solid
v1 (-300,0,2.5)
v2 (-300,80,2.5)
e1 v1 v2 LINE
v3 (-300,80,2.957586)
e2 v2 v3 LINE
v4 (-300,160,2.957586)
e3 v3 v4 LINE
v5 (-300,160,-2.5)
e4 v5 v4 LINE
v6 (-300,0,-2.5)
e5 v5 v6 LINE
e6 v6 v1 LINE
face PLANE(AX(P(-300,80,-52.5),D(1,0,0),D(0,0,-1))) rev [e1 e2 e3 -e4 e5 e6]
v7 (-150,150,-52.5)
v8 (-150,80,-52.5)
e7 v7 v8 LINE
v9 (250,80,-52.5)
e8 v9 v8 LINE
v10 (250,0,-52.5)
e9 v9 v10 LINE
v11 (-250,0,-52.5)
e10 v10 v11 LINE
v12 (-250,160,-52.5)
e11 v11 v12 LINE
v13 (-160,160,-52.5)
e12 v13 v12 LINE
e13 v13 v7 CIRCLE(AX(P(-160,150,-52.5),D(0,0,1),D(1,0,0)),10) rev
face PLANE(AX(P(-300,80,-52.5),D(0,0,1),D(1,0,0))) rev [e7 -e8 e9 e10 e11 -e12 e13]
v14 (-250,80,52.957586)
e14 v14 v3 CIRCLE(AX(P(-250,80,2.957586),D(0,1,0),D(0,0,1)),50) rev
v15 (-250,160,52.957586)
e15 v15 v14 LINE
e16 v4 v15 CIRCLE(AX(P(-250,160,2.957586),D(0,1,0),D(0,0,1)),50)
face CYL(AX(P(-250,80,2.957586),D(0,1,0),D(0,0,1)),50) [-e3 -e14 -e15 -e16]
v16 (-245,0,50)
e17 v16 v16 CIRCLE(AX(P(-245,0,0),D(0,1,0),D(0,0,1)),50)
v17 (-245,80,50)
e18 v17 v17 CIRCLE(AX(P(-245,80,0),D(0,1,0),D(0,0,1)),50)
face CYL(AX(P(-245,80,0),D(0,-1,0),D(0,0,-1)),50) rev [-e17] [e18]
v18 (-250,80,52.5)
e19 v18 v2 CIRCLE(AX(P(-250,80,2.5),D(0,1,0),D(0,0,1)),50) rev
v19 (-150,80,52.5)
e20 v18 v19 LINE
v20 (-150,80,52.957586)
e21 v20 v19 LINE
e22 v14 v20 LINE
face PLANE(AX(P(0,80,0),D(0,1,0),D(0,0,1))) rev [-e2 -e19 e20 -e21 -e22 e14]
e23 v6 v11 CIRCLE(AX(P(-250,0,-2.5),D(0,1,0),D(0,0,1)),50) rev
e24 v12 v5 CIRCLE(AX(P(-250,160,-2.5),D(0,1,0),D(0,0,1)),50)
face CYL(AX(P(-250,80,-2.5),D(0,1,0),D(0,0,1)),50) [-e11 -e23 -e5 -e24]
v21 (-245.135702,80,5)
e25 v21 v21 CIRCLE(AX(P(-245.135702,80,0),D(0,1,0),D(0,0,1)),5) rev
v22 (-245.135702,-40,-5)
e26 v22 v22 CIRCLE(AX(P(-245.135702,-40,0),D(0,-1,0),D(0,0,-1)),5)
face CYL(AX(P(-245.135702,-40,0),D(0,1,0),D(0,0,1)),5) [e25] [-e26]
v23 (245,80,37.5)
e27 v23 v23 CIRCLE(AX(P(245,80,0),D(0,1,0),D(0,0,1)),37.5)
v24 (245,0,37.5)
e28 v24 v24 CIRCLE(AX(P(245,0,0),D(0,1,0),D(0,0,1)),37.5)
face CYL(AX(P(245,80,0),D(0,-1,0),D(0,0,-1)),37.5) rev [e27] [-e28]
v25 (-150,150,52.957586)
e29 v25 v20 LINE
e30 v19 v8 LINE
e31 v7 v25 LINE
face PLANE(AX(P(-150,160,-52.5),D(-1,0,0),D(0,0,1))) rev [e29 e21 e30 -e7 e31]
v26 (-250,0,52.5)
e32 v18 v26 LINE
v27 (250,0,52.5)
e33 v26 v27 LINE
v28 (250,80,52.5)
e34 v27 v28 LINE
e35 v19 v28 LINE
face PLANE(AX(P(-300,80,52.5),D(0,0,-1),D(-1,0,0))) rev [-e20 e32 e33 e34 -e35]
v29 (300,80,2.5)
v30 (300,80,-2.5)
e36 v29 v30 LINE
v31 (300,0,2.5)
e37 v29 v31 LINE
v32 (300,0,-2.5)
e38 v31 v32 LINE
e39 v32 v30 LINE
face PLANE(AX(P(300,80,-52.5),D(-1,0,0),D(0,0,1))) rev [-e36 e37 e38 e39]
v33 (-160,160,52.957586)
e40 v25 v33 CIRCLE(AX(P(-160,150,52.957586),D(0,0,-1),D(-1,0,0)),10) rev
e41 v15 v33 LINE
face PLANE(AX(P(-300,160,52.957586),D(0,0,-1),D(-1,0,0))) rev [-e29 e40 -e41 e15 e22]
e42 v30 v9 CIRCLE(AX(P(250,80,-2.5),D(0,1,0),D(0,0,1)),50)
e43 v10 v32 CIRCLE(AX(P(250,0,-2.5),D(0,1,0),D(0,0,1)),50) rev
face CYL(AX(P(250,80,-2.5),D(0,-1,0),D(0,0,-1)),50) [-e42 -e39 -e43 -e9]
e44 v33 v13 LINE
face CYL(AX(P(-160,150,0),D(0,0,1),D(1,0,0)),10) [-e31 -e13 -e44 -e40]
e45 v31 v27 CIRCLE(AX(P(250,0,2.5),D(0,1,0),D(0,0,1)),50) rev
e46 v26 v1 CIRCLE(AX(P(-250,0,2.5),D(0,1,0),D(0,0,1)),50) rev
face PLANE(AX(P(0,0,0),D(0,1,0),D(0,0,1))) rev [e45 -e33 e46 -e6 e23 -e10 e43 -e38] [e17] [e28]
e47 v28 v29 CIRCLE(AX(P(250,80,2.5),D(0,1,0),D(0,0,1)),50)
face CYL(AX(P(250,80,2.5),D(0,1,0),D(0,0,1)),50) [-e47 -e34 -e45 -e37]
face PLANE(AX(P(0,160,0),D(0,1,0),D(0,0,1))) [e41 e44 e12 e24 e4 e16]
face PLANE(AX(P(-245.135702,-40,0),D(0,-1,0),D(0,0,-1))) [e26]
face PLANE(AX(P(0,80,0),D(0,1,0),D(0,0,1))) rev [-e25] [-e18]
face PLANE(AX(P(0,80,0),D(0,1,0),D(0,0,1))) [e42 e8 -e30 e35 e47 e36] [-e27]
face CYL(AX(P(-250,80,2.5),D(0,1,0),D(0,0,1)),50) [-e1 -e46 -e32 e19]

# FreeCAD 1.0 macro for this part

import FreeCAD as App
import Part
import Sketcher


def edges_at(feature, points):
    """Names of the edges that pass closest to the given points."""
    edges = feature.Shape.Edges
    near = lambda p: min(range(len(edges)), key=lambda i: edges[i].distToShape(Part.Vertex(*p))[0])
    return sorted({f"Edge{near(p) + 1}" for p in points})

doc = App.newDocument("Part")
body = doc.addObject("PartDesign::Body", "Body")

# Sketch on XZ plane
sketch1 = doc.addObject("Sketcher::SketchObject", "Sketch")
body.addObject(sketch1)
sketch1.AttachmentSupport = (doc.XZ_Plane, [""])
sketch1.MapMode = "FlatFace"
sketch1.addGeometry(Part.LineSegment(App.Vector(-300, -52.5, 0), App.Vector(-300, 52.5, 0)), False)
sketch1.addGeometry(Part.LineSegment(App.Vector(-300, 52.5, 0), App.Vector(300, 52.5, 0)), False)
sketch1.addGeometry(Part.LineSegment(App.Vector(300, 52.5, 0), App.Vector(300, -52.5, 0)), False)
sketch1.addGeometry(Part.LineSegment(App.Vector(300, -52.5, 0), App.Vector(-300, -52.5, 0)), False)
sketch1.addGeometry(Part.Circle(App.Vector(-245, 0, 0), App.Vector(0, 0, 1), 50), False)
sketch1.addGeometry(Part.Circle(App.Vector(245, 0, 0), App.Vector(0, 0, 1), 37.5), False)
sketch1.addConstraint(Sketcher.Constraint("Coincident", 0, 2, 1, 1))
sketch1.addConstraint(Sketcher.Constraint("Coincident", 1, 2, 2, 1))
sketch1.addConstraint(Sketcher.Constraint("Coincident", 2, 2, 3, 1))
sketch1.addConstraint(Sketcher.Constraint("Coincident", 3, 2, 0, 1))
sketch1.addConstraint(Sketcher.Constraint("Vertical", 0))
sketch1.addConstraint(Sketcher.Constraint("Horizontal", 1))
sketch1.addConstraint(Sketcher.Constraint("Vertical", 2))
sketch1.addConstraint(Sketcher.Constraint("Horizontal", 3))
sketch1.addConstraint(Sketcher.Constraint("Symmetric", 4, 3, 5, 3, -1, 1))
sketch1.addConstraint(Sketcher.Constraint("Symmetric", 0, 2, 2, 2, -1, 1))
sketch1.addConstraint(Sketcher.Constraint("PointOnObject", 4, 3, -1))
sketch1.addConstraint(Sketcher.Constraint("Diameter", 4, 100.0))
sketch1.addConstraint(Sketcher.Constraint("Diameter", 5, 75.0))
sketch1.addConstraint(Sketcher.Constraint("DistanceX", 1, 1, 1, 2, 600.0))
sketch1.addConstraint(Sketcher.Constraint("DistanceY", 0, 1, 0, 2, 105.0))
sketch1.addConstraint(Sketcher.Constraint("DistanceX", 4, 3, -1, 1, 245.0))
pad1 = doc.addObject("PartDesign::Pad", "Pad")
body.addObject(pad1)
pad1.Profile = sketch1
pad1.Length = 80
pad1.Reversed = True

# Sketch on XZ plane
sketch2 = doc.addObject("Sketcher::SketchObject", "Sketch001")
body.addObject(sketch2)
sketch2.AttachmentSupport = (doc.XZ_Plane, [""])
sketch2.MapMode = "FlatFace"
sketch2.AttachmentOffset = App.Placement(App.Vector(0, 0, -80), App.Rotation())
sketch2.addGeometry(Part.LineSegment(App.Vector(-300, -52.5, 0), App.Vector(-300, 52.957586, 0)), False)
sketch2.addGeometry(Part.LineSegment(App.Vector(-300, 52.957586, 0), App.Vector(-150, 52.957586, 0)), False)
sketch2.addGeometry(Part.LineSegment(App.Vector(-150, 52.957586, 0), App.Vector(-150, -52.5, 0)), False)
sketch2.addGeometry(Part.LineSegment(App.Vector(-150, -52.5, 0), App.Vector(-300, -52.5, 0)), False)
sketch2.addConstraint(Sketcher.Constraint("Coincident", 0, 2, 1, 1))
sketch2.addConstraint(Sketcher.Constraint("Coincident", 1, 2, 2, 1))
sketch2.addConstraint(Sketcher.Constraint("Coincident", 2, 2, 3, 1))
sketch2.addConstraint(Sketcher.Constraint("Coincident", 3, 2, 0, 1))
sketch2.addConstraint(Sketcher.Constraint("Vertical", 0))
sketch2.addConstraint(Sketcher.Constraint("Horizontal", 1))
sketch2.addConstraint(Sketcher.Constraint("Vertical", 2))
sketch2.addConstraint(Sketcher.Constraint("Horizontal", 3))
sketch2.addConstraint(Sketcher.Constraint("DistanceX", 1, 1, 1, 2, 150.0))
sketch2.addConstraint(Sketcher.Constraint("DistanceX", 0, 2, -1, 1, 300.0))
sketch2.addConstraint(Sketcher.Constraint("DistanceY", 2, 2, -1, 1, 52.5))
sketch2.addConstraint(Sketcher.Constraint("DistanceY", 0, 1, 0, 2, 105.457586))
pad2 = doc.addObject("PartDesign::Pad", "Pad001")
body.addObject(pad2)
pad2.Profile = sketch2
pad2.Length = 80
pad2.Reversed = True

# Sketch on XZ plane
sketch3 = doc.addObject("Sketcher::SketchObject", "Sketch002")
body.addObject(sketch3)
sketch3.AttachmentSupport = (doc.XZ_Plane, [""])
sketch3.MapMode = "FlatFace"
sketch3.AttachmentOffset = App.Placement(App.Vector(0, 0, -80), App.Rotation())
sketch3.addGeometry(Part.Circle(App.Vector(-245.135702, 0, 0), App.Vector(0, 0, 1), 5), False)
sketch3.addConstraint(Sketcher.Constraint("PointOnObject", 0, 3, -1))
sketch3.addConstraint(Sketcher.Constraint("Diameter", 0, 10.0))
sketch3.addConstraint(Sketcher.Constraint("DistanceX", 0, 3, -1, 1, 245.135702))
pad3 = doc.addObject("PartDesign::Pad", "Pad002")
body.addObject(pad3)
pad3.Profile = sketch3
pad3.Length = 120
doc.recompute()

fillet = doc.addObject("PartDesign::Fillet", "Fillet")
body.addObject(fillet)
fillet.Base = (pad3, edges_at(pad3, [(-150, 160, 0.229)]))
fillet.Radius = 10
doc.recompute()

fillet2 = doc.addObject("PartDesign::Fillet", "Fillet001")
body.addObject(fillet2)
fillet2.Base = (fillet, edges_at(fillet, [(300, 40, 52.5)]))
fillet2.Radius = 50
doc.recompute()

fillet3 = doc.addObject("PartDesign::Fillet", "Fillet002")
body.addObject(fillet3)
fillet3.Base = (fillet2, edges_at(fillet2, [(300, 40, -52.5)]))
fillet3.Radius = 50
doc.recompute()

fillet4 = doc.addObject("PartDesign::Fillet", "Fillet003")
body.addObject(fillet4)
fillet4.Base = (fillet3, edges_at(fillet3, [(-300, 40, 52.5)]))
fillet4.Radius = 50
doc.recompute()

fillet5 = doc.addObject("PartDesign::Fillet", "Fillet004")
body.addObject(fillet5)
fillet5.Base = (fillet4, edges_at(fillet4, [(-300, 120, 52.958)]))
fillet5.Radius = 50
doc.recompute()

fillet6 = doc.addObject("PartDesign::Fillet", "Fillet005")
body.addObject(fillet6)
fillet6.Base = (fillet5, edges_at(fillet5, [(-300, 120, -52.5)]))
fillet6.Radius = 50

doc.recompute()
